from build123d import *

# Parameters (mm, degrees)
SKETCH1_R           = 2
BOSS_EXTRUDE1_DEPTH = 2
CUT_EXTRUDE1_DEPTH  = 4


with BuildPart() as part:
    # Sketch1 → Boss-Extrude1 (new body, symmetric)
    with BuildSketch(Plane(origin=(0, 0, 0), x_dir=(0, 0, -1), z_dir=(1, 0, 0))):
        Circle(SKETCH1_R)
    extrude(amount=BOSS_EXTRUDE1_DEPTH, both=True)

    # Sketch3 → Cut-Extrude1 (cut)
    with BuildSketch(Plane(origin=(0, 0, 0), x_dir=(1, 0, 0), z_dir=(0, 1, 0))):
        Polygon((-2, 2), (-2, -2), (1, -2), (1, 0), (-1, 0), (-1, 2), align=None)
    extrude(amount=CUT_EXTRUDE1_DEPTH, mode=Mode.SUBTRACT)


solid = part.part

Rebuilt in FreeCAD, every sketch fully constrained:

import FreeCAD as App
import Part
import Sketcher

V = App.Vector
Q = App.Units.Quantity


def add_polygon(sketch, points):
    """Adds a closed chain of lines whose ends are joined by coincident constraints."""
    first, n = sketch.GeometryCount, len(points)
    for a, b in zip(points, points[1:] + points[:1]):
        sketch.addGeometry(Part.LineSegment(App.Vector(*a, 0), App.Vector(*b, 0)), False)
    for i in range(n):
        sketch.addConstraint(Sketcher.Constraint("Coincident", first + i, 2, first + (i + 1) % n, 1))

doc = App.newDocument("Part")
params = doc.addObject("Spreadsheet::Sheet", "Params")
for row, (alias, value) in enumerate([
    ("sketch1_diameter", "4 mm"),
    ("pad1_length", "4 mm"),
    ("sketch2_width", "3 mm"),
    ("sketch2_width2", "2 mm"),
    ("pocket1_length", "4 mm"),
], start=1):
    params.set(f"A{row}", alias)
    params.set(f"B{row}", "=" + value)
    params.setAlias(f"B{row}", alias)

body = doc.addObject("PartDesign::Body", "Body")

sketch1 = doc.addObject("Sketcher::SketchObject", "Sketch")
body.addObject(sketch1)
sketch1.AttachmentSupport = (doc.YZ_Plane, [""])
sketch1.MapMode = "FlatFace"
sketch1.addGeometry(Part.Circle(V(0, 0, 0), V(0, 0, 1), 2), False)
sketch1.addConstraint(Sketcher.Constraint("Coincident", 0, 3, -1, 1))
sketch1.addConstraint(Sketcher.Constraint("Diameter", 0, Q("4 mm")))
sketch1.setExpression("Constraints[1]", "Params.sketch1_diameter")
pad1 = doc.addObject("PartDesign::Pad", "Pad")
body.addObject(pad1)
pad1.Profile = sketch1
pad1.setExpression("Length", "Params.pad1_length")
pad1.Midplane = True

sketch2 = doc.addObject("Sketcher::SketchObject", "Sketch001")
body.addObject(sketch2)
sketch2.AttachmentSupport = (doc.XZ_Plane, [""])
sketch2.MapMode = "FlatFace"
add_polygon(sketch2, [(-2, -2), (-2, 2), (1, 2), (1, 0), (-1, 0), (-1, -2)])
sketch2.addConstraint(Sketcher.Constraint("Vertical", 0))
sketch2.addConstraint(Sketcher.Constraint("Horizontal", 1))
sketch2.addConstraint(Sketcher.Constraint("Vertical", 2))
sketch2.addConstraint(Sketcher.Constraint("Horizontal", 3))
sketch2.addConstraint(Sketcher.Constraint("Vertical", 4))
sketch2.addConstraint(Sketcher.Constraint("Horizontal", 5))
sketch2.addConstraint(Sketcher.Constraint("Symmetric", 2, 2, 3, 2, -1, 1))
sketch2.addConstraint(Sketcher.Constraint("Equal", 3, 2))
sketch2.addConstraint(Sketcher.Constraint("Equal", 2, 4))
sketch2.addConstraint(Sketcher.Constraint("DistanceX", 1, 1, 1, 2, Q("3 mm")))
sketch2.addConstraint(Sketcher.Constraint("DistanceX", 3, 2, 3, 1, Q("2 mm")))
sketch2.setExpression("Constraints[15]", "Params.sketch2_width")
sketch2.setExpression("Constraints[16]", "Params.sketch2_width2")
pocket1 = doc.addObject("PartDesign::Pocket", "Pocket")
body.addObject(pocket1)
pocket1.Profile = sketch2
pocket1.setExpression("Length", "Params.pocket1_length")

doc.recompute()
